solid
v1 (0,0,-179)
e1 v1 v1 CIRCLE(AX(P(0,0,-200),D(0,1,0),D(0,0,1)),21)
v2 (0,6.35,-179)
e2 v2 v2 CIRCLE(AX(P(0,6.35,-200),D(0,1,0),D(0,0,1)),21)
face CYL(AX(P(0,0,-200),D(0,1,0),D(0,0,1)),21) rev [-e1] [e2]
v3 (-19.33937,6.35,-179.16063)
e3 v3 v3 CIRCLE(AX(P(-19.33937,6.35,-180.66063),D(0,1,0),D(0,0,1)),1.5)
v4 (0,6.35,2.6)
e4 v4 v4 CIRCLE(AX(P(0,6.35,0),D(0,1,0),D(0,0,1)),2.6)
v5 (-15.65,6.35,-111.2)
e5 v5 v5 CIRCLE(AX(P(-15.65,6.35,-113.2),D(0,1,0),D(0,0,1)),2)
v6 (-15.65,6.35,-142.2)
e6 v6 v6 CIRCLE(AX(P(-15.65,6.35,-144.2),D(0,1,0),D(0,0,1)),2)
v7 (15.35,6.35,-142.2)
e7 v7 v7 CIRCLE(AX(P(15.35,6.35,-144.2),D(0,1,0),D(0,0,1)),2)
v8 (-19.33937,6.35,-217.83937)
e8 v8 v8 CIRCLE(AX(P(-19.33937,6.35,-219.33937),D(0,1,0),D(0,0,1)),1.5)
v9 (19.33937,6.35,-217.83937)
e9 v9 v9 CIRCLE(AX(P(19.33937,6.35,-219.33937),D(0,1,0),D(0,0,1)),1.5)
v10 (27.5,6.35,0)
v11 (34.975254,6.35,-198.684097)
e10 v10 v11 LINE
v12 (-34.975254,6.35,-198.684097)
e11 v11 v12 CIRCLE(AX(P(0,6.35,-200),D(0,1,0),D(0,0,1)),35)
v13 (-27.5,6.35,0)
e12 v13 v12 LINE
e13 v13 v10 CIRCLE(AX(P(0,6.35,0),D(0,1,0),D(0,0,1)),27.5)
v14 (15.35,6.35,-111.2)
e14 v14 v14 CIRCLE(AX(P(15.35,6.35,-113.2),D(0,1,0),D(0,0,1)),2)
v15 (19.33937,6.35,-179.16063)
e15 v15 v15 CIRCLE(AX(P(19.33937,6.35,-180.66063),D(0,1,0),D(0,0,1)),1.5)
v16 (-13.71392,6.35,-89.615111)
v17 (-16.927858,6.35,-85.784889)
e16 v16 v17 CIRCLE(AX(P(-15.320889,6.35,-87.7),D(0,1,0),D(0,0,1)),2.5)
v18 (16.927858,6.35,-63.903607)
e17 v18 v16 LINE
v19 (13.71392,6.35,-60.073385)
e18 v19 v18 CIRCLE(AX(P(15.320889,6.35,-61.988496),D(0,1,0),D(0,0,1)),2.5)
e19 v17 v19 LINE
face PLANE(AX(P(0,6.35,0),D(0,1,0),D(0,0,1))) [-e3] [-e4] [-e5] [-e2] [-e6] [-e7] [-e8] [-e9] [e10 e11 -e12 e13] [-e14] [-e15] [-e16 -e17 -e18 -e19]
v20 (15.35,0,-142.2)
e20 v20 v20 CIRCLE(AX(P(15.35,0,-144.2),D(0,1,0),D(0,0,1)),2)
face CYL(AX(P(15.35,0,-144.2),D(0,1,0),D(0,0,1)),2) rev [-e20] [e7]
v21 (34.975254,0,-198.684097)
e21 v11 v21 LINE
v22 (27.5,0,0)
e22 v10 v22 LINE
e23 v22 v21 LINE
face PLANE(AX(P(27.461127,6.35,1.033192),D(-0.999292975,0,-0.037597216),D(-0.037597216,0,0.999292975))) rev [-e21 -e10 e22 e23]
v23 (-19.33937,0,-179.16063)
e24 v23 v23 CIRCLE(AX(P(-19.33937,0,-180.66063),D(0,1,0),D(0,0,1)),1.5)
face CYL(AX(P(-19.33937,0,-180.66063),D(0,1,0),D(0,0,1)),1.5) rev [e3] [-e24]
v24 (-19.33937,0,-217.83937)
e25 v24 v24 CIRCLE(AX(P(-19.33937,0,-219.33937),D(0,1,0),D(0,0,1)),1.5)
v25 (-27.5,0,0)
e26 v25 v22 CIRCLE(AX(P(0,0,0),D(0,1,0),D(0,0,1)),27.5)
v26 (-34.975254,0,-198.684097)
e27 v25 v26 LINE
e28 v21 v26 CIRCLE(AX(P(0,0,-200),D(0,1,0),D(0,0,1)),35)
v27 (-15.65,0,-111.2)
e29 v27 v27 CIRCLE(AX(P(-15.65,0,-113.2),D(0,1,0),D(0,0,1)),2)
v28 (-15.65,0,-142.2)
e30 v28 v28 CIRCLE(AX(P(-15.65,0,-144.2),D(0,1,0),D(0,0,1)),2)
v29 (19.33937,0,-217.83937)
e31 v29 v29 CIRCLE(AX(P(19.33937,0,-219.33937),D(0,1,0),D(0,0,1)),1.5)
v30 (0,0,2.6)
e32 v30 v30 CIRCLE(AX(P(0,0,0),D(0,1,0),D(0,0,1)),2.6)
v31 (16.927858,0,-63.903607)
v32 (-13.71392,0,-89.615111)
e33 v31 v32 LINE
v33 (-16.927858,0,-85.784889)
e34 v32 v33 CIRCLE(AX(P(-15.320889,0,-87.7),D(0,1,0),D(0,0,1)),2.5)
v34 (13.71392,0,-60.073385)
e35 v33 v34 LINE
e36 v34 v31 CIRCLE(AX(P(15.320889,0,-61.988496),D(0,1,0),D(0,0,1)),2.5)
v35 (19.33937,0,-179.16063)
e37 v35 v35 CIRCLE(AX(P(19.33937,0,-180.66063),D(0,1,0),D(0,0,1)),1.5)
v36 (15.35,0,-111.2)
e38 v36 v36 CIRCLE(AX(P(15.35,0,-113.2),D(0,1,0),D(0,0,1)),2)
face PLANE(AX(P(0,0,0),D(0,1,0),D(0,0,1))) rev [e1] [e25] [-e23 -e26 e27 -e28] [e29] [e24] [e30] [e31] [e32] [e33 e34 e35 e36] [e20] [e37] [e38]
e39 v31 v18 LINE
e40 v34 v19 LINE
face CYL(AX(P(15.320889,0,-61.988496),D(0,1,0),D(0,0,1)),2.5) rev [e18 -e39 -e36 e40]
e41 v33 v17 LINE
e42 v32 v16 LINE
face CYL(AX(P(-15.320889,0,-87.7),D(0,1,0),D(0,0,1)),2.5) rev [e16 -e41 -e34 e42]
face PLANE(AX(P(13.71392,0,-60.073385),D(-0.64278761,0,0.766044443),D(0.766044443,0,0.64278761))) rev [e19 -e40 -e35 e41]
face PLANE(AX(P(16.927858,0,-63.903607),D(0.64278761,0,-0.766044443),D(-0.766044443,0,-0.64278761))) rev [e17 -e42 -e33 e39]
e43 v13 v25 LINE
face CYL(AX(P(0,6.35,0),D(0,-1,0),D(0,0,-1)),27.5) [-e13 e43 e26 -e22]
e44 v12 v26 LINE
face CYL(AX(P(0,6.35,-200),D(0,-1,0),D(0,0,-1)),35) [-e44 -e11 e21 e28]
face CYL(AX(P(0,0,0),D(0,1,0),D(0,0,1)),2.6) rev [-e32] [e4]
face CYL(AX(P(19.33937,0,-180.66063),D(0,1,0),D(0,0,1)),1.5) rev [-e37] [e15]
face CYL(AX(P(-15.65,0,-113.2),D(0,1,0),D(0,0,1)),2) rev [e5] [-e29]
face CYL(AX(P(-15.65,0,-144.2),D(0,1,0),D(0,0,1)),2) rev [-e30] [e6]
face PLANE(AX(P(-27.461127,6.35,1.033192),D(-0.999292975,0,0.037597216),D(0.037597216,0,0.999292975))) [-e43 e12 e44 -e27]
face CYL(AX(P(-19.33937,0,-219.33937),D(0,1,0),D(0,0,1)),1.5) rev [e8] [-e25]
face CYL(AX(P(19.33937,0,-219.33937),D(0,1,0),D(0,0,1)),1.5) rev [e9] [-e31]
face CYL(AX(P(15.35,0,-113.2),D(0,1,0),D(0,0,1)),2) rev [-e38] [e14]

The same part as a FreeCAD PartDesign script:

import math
import FreeCAD as App
import Part
import Sketcher
from FreeCAD import Vector
Q = App.Units.Quantity

doc = App.newDocument("Part")
body = doc.addObject("PartDesign::Body", "Body")

# Sketch on XZ plane
sketch1 = body.newObject("Sketcher::SketchObject", "Sketch")
sketch1.AttachmentSupport = (doc.getObject("XZ_Plane"), [""])
sketch1.MapMode = "FlatFace"
sketch1.addGeometry([
    Part.LineSegment(Vector(28, 0, 0), Vector(35, -199, 0)),
    Part.ArcOfCircle(Part.Circle(Vector(0, -200, 0), Vector(0, 0, 1), 35), math.radians(178), math.radians(362)),
    Part.LineSegment(Vector(-35, -199, 0), Vector(-28, 0, 0)),
    Part.ArcOfCircle(Part.Circle(Vector(0, 0, 0), Vector(0, 0, 1), 28), math.radians(0), math.radians(180)),
], False)
sketch1.addConstraint([
    Sketcher.Constraint("Tangent", 0, 2, 1, 2),
    Sketcher.Constraint("Tangent", 1, 1, 2, 1),
    Sketcher.Constraint("Coincident", 2, 2, 3, 2),
    Sketcher.Constraint("Coincident", 3, 1, 0, 1),
    Sketcher.Constraint("Coincident", 3, 3, -1, 1),
    Sketcher.Constraint("PointOnObject", 1, 3, -2),
    Sketcher.Constraint("PointOnObject", 2, 2, -1),
    Sketcher.Constraint("PointOnObject", 3, 1, -1),
    Sketcher.Constraint("Radius", 1, 35.0),
    Sketcher.Constraint("Radius", 3, 27.5),
    Sketcher.Constraint("DistanceY", 1, 3, -1, 1, 200.0),
])
pad1 = body.newObject("PartDesign::Pad", "Pad")
pad1.Profile = sketch1
pad1.Length = 6.35
pad1.Reversed = True

# Sketch on XZ plane
sketch2 = body.newObject("Sketcher::SketchObject", "Sketch001")
sketch2.AttachmentSupport = (doc.getObject("XZ_Plane"), [""])
sketch2.MapMode = "FlatFace"
sketch2.AttachmentOffset = App.Placement(Vector(0, 0, -6.35), App.Rotation())
sketch2.addGeometry(Part.Circle(Vector(0, 0, 0), Vector(0, 0, 1), 2.6), False)
sketch2.addConstraint([
    Sketcher.Constraint("Coincident", 0, 3, -1, 1),
    Sketcher.Constraint("Diameter", 0, 5.2),
])
pocket1 = body.newObject("PartDesign::Pocket", "Pocket")
pocket1.Profile = sketch2
pocket1.Type = "ThroughAll"
pocket1.Reversed = True

# Sketch on XZ plane
sketch3 = body.newObject("Sketcher::SketchObject", "Sketch002")
sketch3.AttachmentSupport = (doc.getObject("XZ_Plane"), [""])
sketch3.MapMode = "FlatFace"
sketch3.AttachmentOffset = App.Placement(Vector(0, 0, -6.35), App.Rotation())
sketch3.addGeometry(Part.Circle(Vector(0, -200, 0), Vector(0, 0, 1), 21), False)
sketch3.addConstraint([
    Sketcher.Constraint("PointOnObject", 0, 3, -2),
    Sketcher.Constraint("Diameter", 0, 42.0),
    Sketcher.Constraint("DistanceY", 0, 3, -1, 1, 200.0),
])
pocket2 = body.newObject("PartDesign::Pocket", "Pocket001")
pocket2.Profile = sketch3
pocket2.Type = "ThroughAll"
pocket2.Reversed = True

# Sketch on XZ plane
sketch4 = body.newObject("Sketcher::SketchObject", "Sketch003")
sketch4.AttachmentSupport = (doc.getObject("XZ_Plane"), [""])
sketch4.MapMode = "FlatFace"
sketch4.AttachmentOffset = App.Placement(Vector(0, 0, -6.35), App.Rotation())
sketch4.addGeometry([
    Part.Circle(Vector(-19.3, -219.3, 0), Vector(0, 0, 1), 1.5),
    Part.Circle(Vector(19.3, -219.3, 0), Vector(0, 0, 1), 1.5),
    Part.Circle(Vector(19.3, -180.7, 0), Vector(0, 0, 1), 1.5),
    Part.Circle(Vector(-19.3, -180.7, 0), Vector(0, 0, 1), 1.5),
], False)
sketch4.addConstraint([
    Sketcher.Constraint("Equal", 0, 1),
    Sketcher.Constraint("Equal", 1, 2),
    Sketcher.Constraint("Equal", 2, 3),
    Sketcher.Constraint("Symmetric", 0, 3, 1, 3, -2),
    Sketcher.Constraint("Symmetric", 2, 3, 3, 3, -2),
    Sketcher.Constraint("Vertical", 1, 3, 2, 3),
    Sketcher.Constraint("Diameter", 0, 3.0),
    Sketcher.Constraint("DistanceX", 0, 3, -1, 1, 19.33937),
    Sketcher.Constraint("DistanceY", 0, 3, -1, 1, 219.33937),
    Sketcher.Constraint("DistanceY", 2, 3, -1, 1, 180.66063),
])
pocket3 = body.newObject("PartDesign::Pocket", "Pocket002")
pocket3.Profile = sketch4
pocket3.Type = "ThroughAll"
pocket3.Reversed = True

# Sketch on XZ plane
sketch5 = body.newObject("Sketcher::SketchObject", "Sketch004")
sketch5.AttachmentSupport = (doc.getObject("XZ_Plane"), [""])
sketch5.MapMode = "FlatFace"
sketch5.AttachmentOffset = App.Placement(Vector(0, 0, -6.35), App.Rotation())
sketch5.addGeometry([
    Part.LineSegment(Vector(-16.9, -85.8, 0), Vector(13.7, -60.1, 0)),
    Part.ArcOfCircle(Part.Circle(Vector(15.3, -62, 0), Vector(0, 0, 1), 2.5), math.radians(-50), math.radians(130)),
    Part.LineSegment(Vector(16.9, -63.9, 0), Vector(-13.7, -89.6, 0)),
    Part.ArcOfCircle(Part.Circle(Vector(-15.3, -87.7, 0), Vector(0, 0, 1), 2.5), math.radians(130), math.radians(310)),
], False)
sketch5.addConstraint([
    Sketcher.Constraint("Tangent", 0, 2, 1, 2),
    Sketcher.Constraint("Tangent", 1, 1, 2, 1),
    Sketcher.Constraint("Tangent", 2, 2, 3, 2),
    Sketcher.Constraint("Tangent", 3, 1, 0, 1),
    Sketcher.Constraint("Equal", 1, 3),
    Sketcher.Constraint("Radius", 1, 2.5),
    Sketcher.Constraint("Angle", 0, Q("40 deg")),
    Sketcher.Constraint("Distance", 0, 40.0),
    Sketcher.Constraint("DistanceY", 3, 3, -1, 1, 87.7),
    Sketcher.Constraint("DistanceX", -1, 1, 1, 3, 15.320889),
])
pocket4 = body.newObject("PartDesign::Pocket", "Pocket003")
pocket4.Profile = sketch5
pocket4.Type = "ThroughAll"
pocket4.Reversed = True

# Sketch on XZ plane
sketch6 = body.newObject("Sketcher::SketchObject", "Sketch005")
sketch6.AttachmentSupport = (doc.getObject("XZ_Plane"), [""])
sketch6.MapMode = "FlatFace"
sketch6.addGeometry([
    Part.Circle(Vector(-15.7, -113.2, 0), Vector(0, 0, 1), 2),
    Part.Circle(Vector(15.3, -113.2, 0), Vector(0, 0, 1), 2),
    Part.Circle(Vector(15.3, -144.2, 0), Vector(0, 0, 1), 2),
], False)
sketch6.addConstraint([
    Sketcher.Constraint("Equal", 0, 1),
    Sketcher.Constraint("Equal", 1, 2),
    Sketcher.Constraint("Horizontal", 0, 3, 1, 3),
    Sketcher.Constraint("Vertical", 1, 3, 2, 3),
    Sketcher.Constraint("Diameter", 0, 4.0),
    Sketcher.Constraint("DistanceX", 0, 3, 1, 3, 31.0),
    Sketcher.Constraint("DistanceY", 2, 3, 1, 3, 31.0),
    Sketcher.Constraint("DistanceY", 0, 3, -1, 1, 113.2),
    Sketcher.Constraint("DistanceX", 0, 3, -1, 1, 15.65),
])
pocket5 = body.newObject("PartDesign::Pocket", "Pocket004")
pocket5.Profile = sketch6
pocket5.Type = "ThroughAll"

# Sketch on XZ plane
sketch7 = body.newObject("Sketcher::SketchObject", "Sketch006")
sketch7.AttachmentSupport = (doc.getObject("XZ_Plane"), [""])
sketch7.MapMode = "FlatFace"
sketch7.AttachmentOffset = App.Placement(Vector(0, 0, -6.35), App.Rotation())
sketch7.addGeometry([
    Part.Circle(Vector(-15.7, -144.2, 0), Vector(0, 0, 1), 2),
    Part.Circle(Vector(-15.7, -113.2, 0), Vector(0, 0, 1), 2),
    Part.Circle(Vector(15.3, -113.2, 0), Vector(0, 0, 1), 2),
    Part.Circle(Vector(15.3, -144.2, 0), Vector(0, 0, 1), 2),
], False)
sketch7.addConstraint([
    Sketcher.Constraint("Equal", 0, 1),
    Sketcher.Constraint("Equal", 1, 2),
    Sketcher.Constraint("Equal", 2, 3),
    Sketcher.Constraint("Horizontal", 1, 3, 2, 3),
    Sketcher.Constraint("Horizontal", 0, 3, 3, 3),
    Sketcher.Constraint("Vertical", 0, 3, 1, 3),
    Sketcher.Constraint("Vertical", 2, 3, 3, 3),
    Sketcher.Constraint("Diameter", 0, 4.0),
    Sketcher.Constraint("DistanceY", 0, 3, 1, 3, 31.0),
    Sketcher.Constraint("DistanceX", 1, 3, 2, 3, 31.0),
    Sketcher.Constraint("DistanceY", 0, 3, -1, 1, 144.2),
    Sketcher.Constraint("DistanceX", 0, 3, -1, 1, 15.65),
])
pocket6 = body.newObject("PartDesign::Pocket", "Pocket005")
pocket6.Profile = sketch7
pocket6.Type = "ThroughAll"
pocket6.Reversed = True

doc.recompute()
